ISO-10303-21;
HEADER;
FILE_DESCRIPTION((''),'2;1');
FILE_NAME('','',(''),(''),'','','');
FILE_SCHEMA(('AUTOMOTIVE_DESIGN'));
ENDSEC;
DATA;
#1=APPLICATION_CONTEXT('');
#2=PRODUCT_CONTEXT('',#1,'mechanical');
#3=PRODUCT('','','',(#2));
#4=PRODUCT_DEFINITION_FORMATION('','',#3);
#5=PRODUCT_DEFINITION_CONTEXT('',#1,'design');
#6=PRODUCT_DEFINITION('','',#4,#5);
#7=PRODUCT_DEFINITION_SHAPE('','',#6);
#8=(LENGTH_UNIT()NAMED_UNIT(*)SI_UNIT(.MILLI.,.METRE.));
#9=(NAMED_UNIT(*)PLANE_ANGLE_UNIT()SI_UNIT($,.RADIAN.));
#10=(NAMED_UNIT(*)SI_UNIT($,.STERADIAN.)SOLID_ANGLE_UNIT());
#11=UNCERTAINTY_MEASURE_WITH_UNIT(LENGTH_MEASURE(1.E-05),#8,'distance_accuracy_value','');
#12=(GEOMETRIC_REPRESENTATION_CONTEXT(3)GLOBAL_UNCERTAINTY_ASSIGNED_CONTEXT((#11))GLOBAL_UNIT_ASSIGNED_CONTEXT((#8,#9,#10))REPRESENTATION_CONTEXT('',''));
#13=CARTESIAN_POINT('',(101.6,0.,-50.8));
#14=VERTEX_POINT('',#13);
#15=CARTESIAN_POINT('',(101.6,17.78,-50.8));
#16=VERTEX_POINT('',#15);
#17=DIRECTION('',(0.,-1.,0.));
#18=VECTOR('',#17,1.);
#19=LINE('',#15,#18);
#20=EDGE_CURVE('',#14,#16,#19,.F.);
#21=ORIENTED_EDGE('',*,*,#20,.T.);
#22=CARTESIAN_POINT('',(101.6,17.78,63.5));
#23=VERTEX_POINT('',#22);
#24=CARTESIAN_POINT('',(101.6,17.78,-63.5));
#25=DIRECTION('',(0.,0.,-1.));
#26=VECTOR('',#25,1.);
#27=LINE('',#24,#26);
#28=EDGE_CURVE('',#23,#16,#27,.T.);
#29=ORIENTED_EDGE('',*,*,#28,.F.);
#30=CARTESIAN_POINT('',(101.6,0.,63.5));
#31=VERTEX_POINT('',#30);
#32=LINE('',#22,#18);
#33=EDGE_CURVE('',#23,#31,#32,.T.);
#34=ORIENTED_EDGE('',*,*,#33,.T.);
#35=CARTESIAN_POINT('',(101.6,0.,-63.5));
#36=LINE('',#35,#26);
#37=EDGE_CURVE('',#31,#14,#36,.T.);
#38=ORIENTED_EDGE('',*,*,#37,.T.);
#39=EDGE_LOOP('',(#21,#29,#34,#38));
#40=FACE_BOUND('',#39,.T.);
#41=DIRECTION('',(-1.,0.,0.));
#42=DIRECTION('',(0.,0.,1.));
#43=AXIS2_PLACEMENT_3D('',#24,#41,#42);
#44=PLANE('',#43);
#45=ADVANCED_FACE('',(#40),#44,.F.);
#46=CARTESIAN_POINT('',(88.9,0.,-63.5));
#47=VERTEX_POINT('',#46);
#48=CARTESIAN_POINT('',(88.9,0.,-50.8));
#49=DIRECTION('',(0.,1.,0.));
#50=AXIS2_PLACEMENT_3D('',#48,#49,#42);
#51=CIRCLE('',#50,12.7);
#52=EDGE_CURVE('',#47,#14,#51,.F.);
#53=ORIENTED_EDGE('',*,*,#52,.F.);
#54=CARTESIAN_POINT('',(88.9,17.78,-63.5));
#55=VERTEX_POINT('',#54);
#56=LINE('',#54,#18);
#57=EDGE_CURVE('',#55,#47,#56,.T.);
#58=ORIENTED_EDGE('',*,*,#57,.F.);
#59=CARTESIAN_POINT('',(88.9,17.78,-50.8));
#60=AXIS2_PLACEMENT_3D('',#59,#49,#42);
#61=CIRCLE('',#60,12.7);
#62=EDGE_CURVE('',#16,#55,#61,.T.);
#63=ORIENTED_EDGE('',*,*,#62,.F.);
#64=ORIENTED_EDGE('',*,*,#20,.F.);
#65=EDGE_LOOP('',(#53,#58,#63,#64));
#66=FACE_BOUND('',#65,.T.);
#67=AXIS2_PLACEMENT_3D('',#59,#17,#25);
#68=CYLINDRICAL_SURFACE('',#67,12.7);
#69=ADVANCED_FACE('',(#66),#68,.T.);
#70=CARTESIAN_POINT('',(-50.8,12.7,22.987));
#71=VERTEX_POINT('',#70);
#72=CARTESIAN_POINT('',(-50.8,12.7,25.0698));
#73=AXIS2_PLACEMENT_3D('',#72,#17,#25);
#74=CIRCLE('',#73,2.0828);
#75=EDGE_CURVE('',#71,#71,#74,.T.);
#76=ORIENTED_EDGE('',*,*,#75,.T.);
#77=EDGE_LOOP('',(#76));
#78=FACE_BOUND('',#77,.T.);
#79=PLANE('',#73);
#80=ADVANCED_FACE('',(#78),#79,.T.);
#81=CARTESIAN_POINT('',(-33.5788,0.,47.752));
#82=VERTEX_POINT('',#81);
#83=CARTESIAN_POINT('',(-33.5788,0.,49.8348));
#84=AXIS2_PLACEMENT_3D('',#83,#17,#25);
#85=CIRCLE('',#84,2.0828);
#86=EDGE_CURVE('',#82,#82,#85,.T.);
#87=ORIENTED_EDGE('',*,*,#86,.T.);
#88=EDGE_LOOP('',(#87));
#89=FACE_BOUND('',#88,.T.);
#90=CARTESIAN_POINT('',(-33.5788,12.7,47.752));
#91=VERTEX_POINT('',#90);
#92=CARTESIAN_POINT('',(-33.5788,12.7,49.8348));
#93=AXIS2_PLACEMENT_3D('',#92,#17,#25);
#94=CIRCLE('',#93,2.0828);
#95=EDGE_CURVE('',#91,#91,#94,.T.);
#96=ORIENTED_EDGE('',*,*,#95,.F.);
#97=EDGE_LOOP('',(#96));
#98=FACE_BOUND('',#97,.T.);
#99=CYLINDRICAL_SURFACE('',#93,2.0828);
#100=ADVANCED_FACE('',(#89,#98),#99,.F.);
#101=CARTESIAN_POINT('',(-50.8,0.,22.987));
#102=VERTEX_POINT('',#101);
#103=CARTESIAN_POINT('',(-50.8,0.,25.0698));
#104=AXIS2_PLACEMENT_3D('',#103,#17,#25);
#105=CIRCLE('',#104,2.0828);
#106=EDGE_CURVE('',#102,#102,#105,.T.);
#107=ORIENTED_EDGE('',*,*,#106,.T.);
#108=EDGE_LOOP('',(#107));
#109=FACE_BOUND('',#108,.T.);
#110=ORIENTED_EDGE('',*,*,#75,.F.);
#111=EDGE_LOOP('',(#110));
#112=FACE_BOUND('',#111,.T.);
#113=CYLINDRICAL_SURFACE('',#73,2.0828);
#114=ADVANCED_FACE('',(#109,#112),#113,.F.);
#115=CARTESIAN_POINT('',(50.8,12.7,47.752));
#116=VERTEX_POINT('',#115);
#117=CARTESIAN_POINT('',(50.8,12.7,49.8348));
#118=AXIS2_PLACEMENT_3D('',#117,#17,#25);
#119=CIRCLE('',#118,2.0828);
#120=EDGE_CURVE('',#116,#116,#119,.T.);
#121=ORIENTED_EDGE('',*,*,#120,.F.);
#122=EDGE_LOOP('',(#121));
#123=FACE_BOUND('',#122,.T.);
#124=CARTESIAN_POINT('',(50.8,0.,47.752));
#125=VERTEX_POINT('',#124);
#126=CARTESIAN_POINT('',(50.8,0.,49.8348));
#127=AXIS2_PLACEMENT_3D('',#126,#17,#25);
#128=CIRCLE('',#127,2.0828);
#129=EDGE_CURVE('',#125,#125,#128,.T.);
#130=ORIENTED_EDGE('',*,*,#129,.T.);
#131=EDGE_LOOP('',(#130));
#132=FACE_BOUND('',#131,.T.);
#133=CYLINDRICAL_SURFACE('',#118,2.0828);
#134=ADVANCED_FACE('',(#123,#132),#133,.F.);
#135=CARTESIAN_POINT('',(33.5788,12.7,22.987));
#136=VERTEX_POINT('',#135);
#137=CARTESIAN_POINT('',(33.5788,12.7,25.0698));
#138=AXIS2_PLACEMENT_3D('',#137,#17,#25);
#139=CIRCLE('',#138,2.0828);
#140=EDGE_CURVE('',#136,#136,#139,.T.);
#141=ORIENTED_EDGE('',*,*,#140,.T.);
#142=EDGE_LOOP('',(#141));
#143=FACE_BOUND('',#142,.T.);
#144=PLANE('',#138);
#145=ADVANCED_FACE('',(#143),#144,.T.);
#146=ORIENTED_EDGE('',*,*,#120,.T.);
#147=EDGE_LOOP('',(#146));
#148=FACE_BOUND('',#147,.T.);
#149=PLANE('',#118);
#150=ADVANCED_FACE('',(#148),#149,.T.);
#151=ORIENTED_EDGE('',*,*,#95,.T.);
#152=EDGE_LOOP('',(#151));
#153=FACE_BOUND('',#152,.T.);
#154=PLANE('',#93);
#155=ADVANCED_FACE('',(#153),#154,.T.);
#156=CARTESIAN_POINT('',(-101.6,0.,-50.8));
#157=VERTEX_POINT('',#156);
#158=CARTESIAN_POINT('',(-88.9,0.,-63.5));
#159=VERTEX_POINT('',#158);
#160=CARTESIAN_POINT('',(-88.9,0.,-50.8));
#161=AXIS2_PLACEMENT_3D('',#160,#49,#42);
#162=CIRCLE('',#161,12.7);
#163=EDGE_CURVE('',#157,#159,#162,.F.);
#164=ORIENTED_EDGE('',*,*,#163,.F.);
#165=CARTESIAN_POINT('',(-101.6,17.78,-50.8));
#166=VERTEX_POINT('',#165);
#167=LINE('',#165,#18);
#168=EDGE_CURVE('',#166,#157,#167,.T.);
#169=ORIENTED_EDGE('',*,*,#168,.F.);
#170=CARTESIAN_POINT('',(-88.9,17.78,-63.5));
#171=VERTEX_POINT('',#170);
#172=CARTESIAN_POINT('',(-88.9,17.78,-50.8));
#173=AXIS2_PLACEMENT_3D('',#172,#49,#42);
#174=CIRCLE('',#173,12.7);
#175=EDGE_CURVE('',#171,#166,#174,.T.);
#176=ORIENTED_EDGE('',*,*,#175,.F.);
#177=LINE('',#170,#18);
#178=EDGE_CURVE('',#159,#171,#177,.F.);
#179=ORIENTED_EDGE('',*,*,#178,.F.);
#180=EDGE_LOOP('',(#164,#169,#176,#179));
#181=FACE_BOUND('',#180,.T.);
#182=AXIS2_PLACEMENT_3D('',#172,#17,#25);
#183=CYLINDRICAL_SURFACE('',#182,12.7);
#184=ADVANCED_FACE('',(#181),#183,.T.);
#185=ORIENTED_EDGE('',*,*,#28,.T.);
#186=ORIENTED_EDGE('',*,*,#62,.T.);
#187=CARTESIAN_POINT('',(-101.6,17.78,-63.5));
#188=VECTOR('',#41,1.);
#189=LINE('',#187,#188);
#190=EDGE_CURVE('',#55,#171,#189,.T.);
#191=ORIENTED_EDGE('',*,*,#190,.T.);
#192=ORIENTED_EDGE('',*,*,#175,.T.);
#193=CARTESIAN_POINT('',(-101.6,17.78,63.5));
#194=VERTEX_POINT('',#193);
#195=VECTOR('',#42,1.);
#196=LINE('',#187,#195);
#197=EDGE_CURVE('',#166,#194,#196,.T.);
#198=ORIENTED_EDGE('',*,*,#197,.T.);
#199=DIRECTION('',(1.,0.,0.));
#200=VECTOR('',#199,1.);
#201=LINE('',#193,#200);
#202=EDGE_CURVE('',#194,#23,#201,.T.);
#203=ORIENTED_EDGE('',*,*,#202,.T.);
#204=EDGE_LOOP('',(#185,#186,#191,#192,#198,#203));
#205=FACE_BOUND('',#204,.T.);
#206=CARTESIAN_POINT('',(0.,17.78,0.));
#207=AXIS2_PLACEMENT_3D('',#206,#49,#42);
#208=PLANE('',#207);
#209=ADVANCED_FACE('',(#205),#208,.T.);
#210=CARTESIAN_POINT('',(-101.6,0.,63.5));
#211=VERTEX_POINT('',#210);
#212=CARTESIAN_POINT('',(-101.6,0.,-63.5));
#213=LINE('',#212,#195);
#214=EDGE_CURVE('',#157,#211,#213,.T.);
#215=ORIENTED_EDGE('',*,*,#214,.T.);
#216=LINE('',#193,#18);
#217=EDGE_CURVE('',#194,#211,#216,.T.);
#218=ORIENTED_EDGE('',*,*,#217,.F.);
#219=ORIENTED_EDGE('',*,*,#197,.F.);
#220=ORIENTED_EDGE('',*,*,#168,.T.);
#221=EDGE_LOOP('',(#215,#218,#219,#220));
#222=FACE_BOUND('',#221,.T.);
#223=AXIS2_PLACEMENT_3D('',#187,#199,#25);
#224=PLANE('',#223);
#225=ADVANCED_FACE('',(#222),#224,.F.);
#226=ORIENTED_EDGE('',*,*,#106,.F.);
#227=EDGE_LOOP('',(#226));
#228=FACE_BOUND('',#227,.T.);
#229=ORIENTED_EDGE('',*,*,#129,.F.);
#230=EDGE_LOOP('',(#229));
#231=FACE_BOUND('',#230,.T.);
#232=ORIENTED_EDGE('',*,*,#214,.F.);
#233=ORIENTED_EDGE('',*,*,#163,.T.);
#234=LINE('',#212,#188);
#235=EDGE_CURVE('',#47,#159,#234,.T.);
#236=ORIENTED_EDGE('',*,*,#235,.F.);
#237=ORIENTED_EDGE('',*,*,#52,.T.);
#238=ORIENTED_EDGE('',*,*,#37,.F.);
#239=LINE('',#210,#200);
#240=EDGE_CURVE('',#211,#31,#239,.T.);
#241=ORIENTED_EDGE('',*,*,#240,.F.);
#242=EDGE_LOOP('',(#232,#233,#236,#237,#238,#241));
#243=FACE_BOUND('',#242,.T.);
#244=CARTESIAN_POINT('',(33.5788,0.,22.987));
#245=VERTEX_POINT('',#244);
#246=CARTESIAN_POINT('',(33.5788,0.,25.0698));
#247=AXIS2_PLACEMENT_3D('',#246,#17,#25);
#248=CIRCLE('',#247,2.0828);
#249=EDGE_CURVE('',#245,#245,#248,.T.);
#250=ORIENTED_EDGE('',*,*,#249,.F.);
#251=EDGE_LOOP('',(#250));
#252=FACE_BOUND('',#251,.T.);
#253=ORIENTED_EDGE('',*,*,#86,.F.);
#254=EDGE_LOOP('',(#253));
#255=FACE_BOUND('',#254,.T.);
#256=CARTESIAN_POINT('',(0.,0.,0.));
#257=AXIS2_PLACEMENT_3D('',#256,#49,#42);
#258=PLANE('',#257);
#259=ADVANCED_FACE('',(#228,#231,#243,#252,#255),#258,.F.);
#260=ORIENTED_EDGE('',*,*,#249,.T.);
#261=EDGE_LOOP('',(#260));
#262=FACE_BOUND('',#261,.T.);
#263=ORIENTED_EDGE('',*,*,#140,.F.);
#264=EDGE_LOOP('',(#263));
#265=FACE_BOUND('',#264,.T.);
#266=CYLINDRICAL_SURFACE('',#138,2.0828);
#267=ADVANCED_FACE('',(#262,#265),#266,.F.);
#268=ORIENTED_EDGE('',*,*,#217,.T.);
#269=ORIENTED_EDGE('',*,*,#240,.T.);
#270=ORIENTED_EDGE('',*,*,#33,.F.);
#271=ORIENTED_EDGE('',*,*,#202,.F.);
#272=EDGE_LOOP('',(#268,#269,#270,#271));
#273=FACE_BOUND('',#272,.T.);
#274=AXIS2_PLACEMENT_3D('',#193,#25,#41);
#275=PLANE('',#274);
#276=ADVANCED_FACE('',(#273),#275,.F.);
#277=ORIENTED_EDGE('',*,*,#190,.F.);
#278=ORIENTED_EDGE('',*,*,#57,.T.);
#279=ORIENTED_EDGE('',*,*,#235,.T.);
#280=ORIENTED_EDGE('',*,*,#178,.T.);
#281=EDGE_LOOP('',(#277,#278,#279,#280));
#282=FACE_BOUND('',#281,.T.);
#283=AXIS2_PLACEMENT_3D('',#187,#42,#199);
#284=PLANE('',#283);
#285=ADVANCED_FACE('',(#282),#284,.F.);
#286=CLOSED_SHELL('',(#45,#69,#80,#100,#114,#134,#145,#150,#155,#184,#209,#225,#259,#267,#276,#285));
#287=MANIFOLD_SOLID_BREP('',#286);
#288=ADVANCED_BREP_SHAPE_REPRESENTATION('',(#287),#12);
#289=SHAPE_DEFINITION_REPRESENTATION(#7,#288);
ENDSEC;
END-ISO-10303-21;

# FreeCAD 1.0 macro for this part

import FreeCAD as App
import Part
import Sketcher
Q = App.Units.Quantity


def edges_at(feature, points):
    """Names of the edges that pass closest to the given points."""
    edges = feature.Shape.Edges
    near = lambda p: min(range(len(edges)), key=lambda i: edges[i].distToShape(Part.Vertex(*p))[0])
    return sorted({f"Edge{near(p) + 1}" for p in points})


def add_polygon(sketch, points):
    """Adds a closed chain of lines whose ends are joined by coincident constraints."""
    first, n = sketch.GeometryCount, len(points)
    for a, b in zip(points, points[1:] + points[:1]):
        sketch.addGeometry(Part.LineSegment(App.Vector(*a, 0), App.Vector(*b, 0)), False)
    for i in range(n):
        sketch.addConstraint(Sketcher.Constraint("Coincident", first + i, 2, first + (i + 1) % n, 1))

doc = App.newDocument("Part")
body = doc.addObject("PartDesign::Body", "Body")

# Sketch on XZ plane
sketch1 = body.newObject("Sketcher::SketchObject", "Sketch")
sketch1.AttachmentSupport = (doc.getObject("XZ_Plane"), [""])
sketch1.MapMode = "FlatFace"
add_polygon(sketch1, [(-102, -64), (-102, 64), (102, 64), (102, -64)])  # lines 0-3
sketch1.addConstraint([
    Sketcher.Constraint("Vertical", 0),
    Sketcher.Constraint("Horizontal", 1),
    Sketcher.Constraint("Vertical", 2),
    Sketcher.Constraint("Horizontal", 3),
    Sketcher.Constraint("Symmetric", 0, 2, 2, 2, -1, 1),
    Sketcher.Constraint("DistanceX", 1, 1, 1, 2, Q("8 in")),
    Sketcher.Constraint("DistanceY", 0, 1, 0, 2, Q("5 in")),
])
pad1 = body.newObject("PartDesign::Pad", "Pad")
pad1.Profile = sketch1
pad1.Length = Q("0.7 in")
pad1.Reversed = True
doc.recompute()

fillet = body.newObject("PartDesign::Fillet", "Fillet")
fillet.Base = (pad1, edges_at(pad1, [(-101.6, 8.89, -63.5), (101.6, 8.89, -63.5)]))
fillet.Radius = Q("0.5 in")

# Sketch on XZ plane
sketch2 = body.newObject("Sketcher::SketchObject", "Sketch001")
sketch2.AttachmentSupport = (doc.getObject("XZ_Plane"), [""])
sketch2.MapMode = "FlatFace"
sketch2.addGeometry([
    Part.Circle(App.Vector(50.8, 49.8, 0), App.Vector(0, 0, 1), 2.1),
    Part.Circle(App.Vector(33.6, 25.1, 0), App.Vector(0, 0, 1), 2.1),
    Part.Circle(App.Vector(-50.8, 25.1, 0), App.Vector(0, 0, 1), 2.1),
    Part.Circle(App.Vector(-33.6, 49.8, 0), App.Vector(0, 0, 1), 2.1),
], False)
sketch2.addConstraint([
    Sketcher.Constraint("Equal", 0, 1),
    Sketcher.Constraint("Equal", 1, 2),
    Sketcher.Constraint("Equal", 2, 3),
    Sketcher.Constraint("Horizontal", 1, 3, 2, 3),
    Sketcher.Constraint("Horizontal", 0, 3, 3, 3),
    Sketcher.Constraint("Diameter", 0, Q("0.164 in")),
    Sketcher.Constraint("DistanceX", -1, 1, 0, 3, Q("2 in")),
    Sketcher.Constraint("DistanceX", 2, 3, -1, 1, Q("2 in")),
    Sketcher.Constraint("DistanceY", -1, 1, 0, 3, Q("1.962 in")),
    Sketcher.Constraint("DistanceX", -1, 1, 1, 3, Q("1.322 in")),
    Sketcher.Constraint("DistanceY", -1, 1, 1, 3, Q("0.987 in")),
    Sketcher.Constraint("DistanceX", 3, 3, -1, 1, Q("1.322 in")),
])
pocket1 = body.newObject("PartDesign::Pocket", "Pocket")
pocket1.Profile = sketch2
pocket1.Length = Q("0.5 in")

doc.recompute()
